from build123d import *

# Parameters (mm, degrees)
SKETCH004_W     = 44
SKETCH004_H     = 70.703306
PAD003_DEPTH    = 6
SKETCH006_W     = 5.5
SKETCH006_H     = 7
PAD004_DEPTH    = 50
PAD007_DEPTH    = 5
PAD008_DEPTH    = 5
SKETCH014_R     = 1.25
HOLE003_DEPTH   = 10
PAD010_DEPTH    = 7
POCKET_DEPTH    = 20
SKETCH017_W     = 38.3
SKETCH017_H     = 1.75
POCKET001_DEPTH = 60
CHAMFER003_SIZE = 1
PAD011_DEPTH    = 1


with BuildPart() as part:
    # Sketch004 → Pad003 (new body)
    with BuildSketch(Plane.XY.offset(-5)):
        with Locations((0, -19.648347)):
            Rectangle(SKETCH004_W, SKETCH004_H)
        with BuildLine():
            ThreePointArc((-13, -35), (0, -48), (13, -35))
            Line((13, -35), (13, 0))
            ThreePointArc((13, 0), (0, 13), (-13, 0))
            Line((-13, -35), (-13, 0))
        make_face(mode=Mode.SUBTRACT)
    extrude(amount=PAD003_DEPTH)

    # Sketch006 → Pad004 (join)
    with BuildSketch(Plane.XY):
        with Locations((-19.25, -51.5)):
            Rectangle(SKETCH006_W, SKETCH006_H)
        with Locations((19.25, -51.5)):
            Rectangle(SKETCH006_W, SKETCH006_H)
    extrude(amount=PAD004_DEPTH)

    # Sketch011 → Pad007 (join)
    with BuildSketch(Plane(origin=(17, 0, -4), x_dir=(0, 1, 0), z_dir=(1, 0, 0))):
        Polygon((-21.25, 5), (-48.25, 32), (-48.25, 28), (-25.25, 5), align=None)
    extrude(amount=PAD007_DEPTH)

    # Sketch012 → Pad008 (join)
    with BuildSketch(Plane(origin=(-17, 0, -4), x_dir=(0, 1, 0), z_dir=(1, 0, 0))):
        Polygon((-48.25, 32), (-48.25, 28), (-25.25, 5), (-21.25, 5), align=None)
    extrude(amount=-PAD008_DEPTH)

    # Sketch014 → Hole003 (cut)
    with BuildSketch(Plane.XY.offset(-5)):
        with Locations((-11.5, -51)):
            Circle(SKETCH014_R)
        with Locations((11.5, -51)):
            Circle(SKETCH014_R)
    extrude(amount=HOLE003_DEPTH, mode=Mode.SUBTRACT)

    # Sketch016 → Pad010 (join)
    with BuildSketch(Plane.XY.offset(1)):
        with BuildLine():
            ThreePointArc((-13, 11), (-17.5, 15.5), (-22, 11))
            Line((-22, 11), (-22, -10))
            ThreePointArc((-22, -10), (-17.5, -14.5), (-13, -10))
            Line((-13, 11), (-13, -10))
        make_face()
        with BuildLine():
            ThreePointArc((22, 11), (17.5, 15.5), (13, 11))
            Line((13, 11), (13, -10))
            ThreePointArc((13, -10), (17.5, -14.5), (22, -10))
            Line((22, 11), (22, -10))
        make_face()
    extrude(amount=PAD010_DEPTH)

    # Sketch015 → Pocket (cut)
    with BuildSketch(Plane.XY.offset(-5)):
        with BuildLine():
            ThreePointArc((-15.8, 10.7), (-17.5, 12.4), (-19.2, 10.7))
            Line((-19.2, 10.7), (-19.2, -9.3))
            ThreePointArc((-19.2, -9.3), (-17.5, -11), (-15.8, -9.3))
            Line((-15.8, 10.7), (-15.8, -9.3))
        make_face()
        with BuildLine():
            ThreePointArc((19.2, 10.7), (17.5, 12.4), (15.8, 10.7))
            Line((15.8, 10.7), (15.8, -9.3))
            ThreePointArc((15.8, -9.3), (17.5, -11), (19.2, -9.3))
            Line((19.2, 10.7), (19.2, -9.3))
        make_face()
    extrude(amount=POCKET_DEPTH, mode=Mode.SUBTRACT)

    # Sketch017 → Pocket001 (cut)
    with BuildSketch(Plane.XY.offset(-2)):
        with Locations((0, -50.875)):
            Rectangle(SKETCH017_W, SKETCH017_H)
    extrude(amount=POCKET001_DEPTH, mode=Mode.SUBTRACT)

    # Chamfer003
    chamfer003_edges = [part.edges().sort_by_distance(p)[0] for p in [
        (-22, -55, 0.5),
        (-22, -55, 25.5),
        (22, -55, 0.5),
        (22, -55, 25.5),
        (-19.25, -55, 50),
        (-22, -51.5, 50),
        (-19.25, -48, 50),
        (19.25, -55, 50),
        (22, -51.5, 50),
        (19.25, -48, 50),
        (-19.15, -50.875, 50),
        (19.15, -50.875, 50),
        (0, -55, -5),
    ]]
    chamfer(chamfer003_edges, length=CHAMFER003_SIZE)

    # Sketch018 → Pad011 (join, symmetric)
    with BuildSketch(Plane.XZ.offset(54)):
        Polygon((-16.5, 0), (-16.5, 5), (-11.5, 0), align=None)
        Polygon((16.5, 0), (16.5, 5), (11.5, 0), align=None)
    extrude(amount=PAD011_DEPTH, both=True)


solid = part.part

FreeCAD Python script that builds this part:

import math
import FreeCAD as App
import Part
import Sketcher


def edges_at(feature, points):
    """Names of the edges that pass closest to the given points."""
    edges = feature.Shape.Edges
    near = lambda p: min(range(len(edges)), key=lambda i: edges[i].distToShape(Part.Vertex(*p))[0])
    return sorted({f"Edge{near(p) + 1}" for p in points})


def add_polygon(sketch, points):
    """Adds a closed chain of lines whose ends are joined by coincident constraints."""
    first, n = sketch.GeometryCount, len(points)
    for a, b in zip(points, points[1:] + points[:1]):
        sketch.addGeometry(Part.LineSegment(App.Vector(*a, 0), App.Vector(*b, 0)), False)
    for i in range(n):
        sketch.addConstraint(Sketcher.Constraint("Coincident", first + i, 2, first + (i + 1) % n, 1))

doc = App.newDocument("Part")
body = doc.addObject("PartDesign::Body", "Body")

# Sketch on XY plane
sketch1 = doc.addObject("Sketcher::SketchObject", "Sketch")
body.addObject(sketch1)
sketch1.AttachmentSupport = (doc.XY_Plane, [""])
sketch1.MapMode = "FlatFace"
sketch1.AttachmentOffset = App.Placement(App.Vector(0, 0, -5), App.Rotation())
add_polygon(sketch1, [(-22, 16), (-22, -55), (22, -55), (22, 16)])  # lines 0-3
sketch1.addGeometry(Part.ArcOfCircle(Part.Circle(App.Vector(0, -35, 0), App.Vector(0, 0, 1), 13), math.radians(180), math.radians(360)), False)  # 4
sketch1.addGeometry(Part.LineSegment(App.Vector(-13, -35, 0), App.Vector(-13, 0, 0)), False)  # 5
sketch1.addGeometry(Part.ArcOfCircle(Part.Circle(App.Vector(0, 0, 0), App.Vector(0, 0, 1), 13), math.radians(0), math.radians(180)), False)  # 6
sketch1.addGeometry(Part.LineSegment(App.Vector(13, 0, 0), App.Vector(13, -35, 0)), False)  # 7
sketch1.addConstraint([
    Sketcher.Constraint("Tangent", 4, 1, 5, 1),
    Sketcher.Constraint("Tangent", 5, 2, 6, 2),
    Sketcher.Constraint("Tangent", 6, 1, 7, 1),
    Sketcher.Constraint("Tangent", 7, 2, 4, 2),
    Sketcher.Constraint("Vertical", 0),
    Sketcher.Constraint("Horizontal", 1),
    Sketcher.Constraint("Vertical", 2),
    Sketcher.Constraint("Horizontal", 3),
    Sketcher.Constraint("Vertical", 5),
    Sketcher.Constraint("Vertical", 7),
    Sketcher.Constraint("Coincident", 6, 3, -1, 1),
    Sketcher.Constraint("Radius", 4, 13.0),
    Sketcher.Constraint("DistanceX", 1, 1, 1, 2, 44.0),
    Sketcher.Constraint("DistanceY", 5, 1, 5, 2, 35.0),
    Sketcher.Constraint("DistanceX", 0, 2, -1, 1, 22.0),
    Sketcher.Constraint("DistanceY", 0, 2, -1, 1, 55.0),
    Sketcher.Constraint("DistanceY", 0, 2, 0, 1, 70.703306),
])
pad1 = doc.addObject("PartDesign::Pad", "Pad")
body.addObject(pad1)
pad1.Profile = sketch1
pad1.Length = 6

# Sketch on XY plane
sketch2 = doc.addObject("Sketcher::SketchObject", "Sketch001")
body.addObject(sketch2)
sketch2.AttachmentSupport = (doc.XY_Plane, [""])
sketch2.MapMode = "FlatFace"
add_polygon(sketch2, [(-22, -48), (-22, -55), (-16, -55), (-16, -48)])  # lines 0-3
add_polygon(sketch2, [(16, -48), (16, -55), (22, -55), (22, -48)])  # lines 4-7
sketch2.addConstraint([
    Sketcher.Constraint("Vertical", 0),
    Sketcher.Constraint("Horizontal", 1),
    Sketcher.Constraint("Vertical", 2),
    Sketcher.Constraint("Horizontal", 3),
    Sketcher.Constraint("Vertical", 4),
    Sketcher.Constraint("Horizontal", 5),
    Sketcher.Constraint("Vertical", 6),
    Sketcher.Constraint("Horizontal", 7),
    Sketcher.Constraint("Symmetric", 1, 2, 4, 2, -2),
    Sketcher.Constraint("Symmetric", 3, 2, 6, 2, -2),
    Sketcher.Constraint("DistanceY", 0, 2, 0, 1, 7.0),
    Sketcher.Constraint("DistanceX", 1, 1, 1, 2, 5.5),
    Sketcher.Constraint("DistanceX", 0, 2, -1, 1, 22.0),
    Sketcher.Constraint("DistanceY", 0, 2, -1, 1, 55.0),
])
pad2 = doc.addObject("PartDesign::Pad", "Pad001")
body.addObject(pad2)
pad2.Profile = sketch2
pad2.Length = 50

# Sketch on YZ plane
sketch3 = doc.addObject("Sketcher::SketchObject", "Sketch002")
body.addObject(sketch3)
sketch3.AttachmentSupport = (doc.YZ_Plane, [""])
sketch3.MapMode = "FlatFace"
sketch3.AttachmentOffset = App.Placement(App.Vector(0, 0, 17), App.Rotation())
add_polygon(sketch3, [(-21.2, 1), (-48.2, 28), (-48.2, 24), (-25.2, 1)])  # lines 0-3
sketch3.addConstraint([
    Sketcher.Constraint("Vertical", 1),
    Sketcher.Constraint("Horizontal", 3),
    Sketcher.Constraint("Parallel", 0, 2),
    Sketcher.Constraint("Equal", 3, 1),
    Sketcher.Constraint("DistanceX", 3, 1, 3, 2, 4.0),
    Sketcher.Constraint("DistanceY", -1, 1, 0, 2, 28.0),
    Sketcher.Constraint("DistanceY", -1, 1, 2, 2, 1.0),
    Sketcher.Constraint("DistanceX", 0, 2, -1, 1, 48.25),
])
pad3 = doc.addObject("PartDesign::Pad", "Pad002")
body.addObject(pad3)
pad3.Profile = sketch3
pad3.Length = 5

# Sketch on YZ plane
sketch4 = doc.addObject("Sketcher::SketchObject", "Sketch003")
body.addObject(sketch4)
sketch4.AttachmentSupport = (doc.YZ_Plane, [""])
sketch4.MapMode = "FlatFace"
sketch4.AttachmentOffset = App.Placement(App.Vector(0, 0, -17), App.Rotation())
add_polygon(sketch4, [(-48.2, 28), (-48.2, 24), (-25.2, 1), (-21.2, 1)])  # lines 0-3
sketch4.addConstraint([
    Sketcher.Constraint("Vertical", 0),
    Sketcher.Constraint("Horizontal", 2),
    Sketcher.Constraint("Parallel", 1, 3),
    Sketcher.Constraint("Equal", 2, 0),
    Sketcher.Constraint("DistanceX", 2, 1, 2, 2, 4.0),
    Sketcher.Constraint("DistanceY", -1, 1, 0, 2, 24.0),
    Sketcher.Constraint("DistanceY", -1, 1, 1, 2, 1.0),
    Sketcher.Constraint("DistanceX", 0, 2, -1, 1, 48.25),
])
pad4 = doc.addObject("PartDesign::Pad", "Pad003")
body.addObject(pad4)
pad4.Profile = sketch4
pad4.Length = 5
pad4.Reversed = True

# Sketch on XY plane
sketch5 = doc.addObject("Sketcher::SketchObject", "Sketch004")
body.addObject(sketch5)
sketch5.AttachmentSupport = (doc.XY_Plane, [""])
sketch5.MapMode = "FlatFace"
sketch5.AttachmentOffset = App.Placement(App.Vector(0, 0, -5), App.Rotation())
sketch5.addGeometry([
    Part.Circle(App.Vector(-11.5, -51, 0), App.Vector(0, 0, 1), 1.2),
    Part.Circle(App.Vector(11.5, -51, 0), App.Vector(0, 0, 1), 1.2),
], False)
sketch5.addConstraint([
    Sketcher.Constraint("Equal", 0, 1),
    Sketcher.Constraint("Symmetric", 0, 3, 1, 3, -2),
    Sketcher.Constraint("Diameter", 0, 2.5),
    Sketcher.Constraint("DistanceY", 0, 3, -1, 1, 51.0),
    Sketcher.Constraint("DistanceX", 0, 3, 1, 3, 23.0),
])
pocket1 = doc.addObject("PartDesign::Pocket", "Pocket")
body.addObject(pocket1)
pocket1.Profile = sketch5
pocket1.Length = 10
pocket1.Reversed = True

# Sketch on XY plane
sketch6 = doc.addObject("Sketcher::SketchObject", "Sketch005")
body.addObject(sketch6)
sketch6.AttachmentSupport = (doc.XY_Plane, [""])
sketch6.MapMode = "FlatFace"
sketch6.AttachmentOffset = App.Placement(App.Vector(0, 0, 1), App.Rotation())
sketch6.addGeometry([
    Part.ArcOfCircle(Part.Circle(App.Vector(-17.5, 11, 0), App.Vector(0, 0, 1), 4.5), math.radians(0), math.radians(180)),  # 0
    Part.LineSegment(App.Vector(-22, 11, 0), App.Vector(-22, -10, 0)),  # 1
    Part.ArcOfCircle(Part.Circle(App.Vector(-17.5, -10, 0), App.Vector(0, 0, 1), 4.5), math.radians(180), math.radians(360)),  # 2
    Part.LineSegment(App.Vector(-13, -10, 0), App.Vector(-13, 11, 0)),  # 3
    Part.ArcOfCircle(Part.Circle(App.Vector(17.5, 11, 0), App.Vector(0, 0, 1), 4.5), math.radians(0), math.radians(180)),  # 4
    Part.LineSegment(App.Vector(13, 11, 0), App.Vector(13, -10, 0)),  # 5
    Part.ArcOfCircle(Part.Circle(App.Vector(17.5, -10, 0), App.Vector(0, 0, 1), 4.5), math.radians(180), math.radians(360)),  # 6
    Part.LineSegment(App.Vector(22, -10, 0), App.Vector(22, 11, 0)),  # 7
], False)
sketch6.addConstraint([
    Sketcher.Constraint("Tangent", 0, 2, 1, 1),
    Sketcher.Constraint("Tangent", 1, 2, 2, 1),
    Sketcher.Constraint("Tangent", 2, 2, 3, 1),
    Sketcher.Constraint("Tangent", 3, 2, 0, 1),
    Sketcher.Constraint("Tangent", 4, 2, 5, 1),
    Sketcher.Constraint("Tangent", 5, 2, 6, 1),
    Sketcher.Constraint("Tangent", 6, 2, 7, 1),
    Sketcher.Constraint("Tangent", 7, 2, 4, 1),
    Sketcher.Constraint("Vertical", 1),
    Sketcher.Constraint("Vertical", 3),
    Sketcher.Constraint("Vertical", 5),
    Sketcher.Constraint("Vertical", 7),
    Sketcher.Constraint("Equal", 2, 4),
    Sketcher.Constraint("Symmetric", 0, 3, 4, 3, -2),
    Sketcher.Constraint("Horizontal", 2, 3, 6, 3),
    Sketcher.Constraint("Radius", 0, 4.5),
    Sketcher.Constraint("DistanceY", 1, 2, 1, 1, 21.0),
    Sketcher.Constraint("DistanceY", -1, 1, 0, 3, 11.0),
    Sketcher.Constraint("DistanceX", 0, 2, -1, 1, 22.0),
])
pad5 = doc.addObject("PartDesign::Pad", "Pad004")
body.addObject(pad5)
pad5.Profile = sketch6
pad5.Length = 7

# Sketch on XY plane
sketch7 = doc.addObject("Sketcher::SketchObject", "Sketch006")
body.addObject(sketch7)
sketch7.AttachmentSupport = (doc.XY_Plane, [""])
sketch7.MapMode = "FlatFace"
sketch7.AttachmentOffset = App.Placement(App.Vector(0, 0, -5), App.Rotation())
sketch7.addGeometry([
    Part.ArcOfCircle(Part.Circle(App.Vector(-17.5, 10.7, 0), App.Vector(0, 0, 1), 1.7), math.radians(0), math.radians(180)),  # 0
    Part.LineSegment(App.Vector(-19.2, 10.7, 0), App.Vector(-19.2, -9.3, 0)),  # 1
    Part.ArcOfCircle(Part.Circle(App.Vector(-17.5, -9.3, 0), App.Vector(0, 0, 1), 1.7), math.radians(180), math.radians(360)),  # 2
    Part.LineSegment(App.Vector(-15.8, -9.3, 0), App.Vector(-15.8, 10.7, 0)),  # 3
    Part.ArcOfCircle(Part.Circle(App.Vector(17.5, 10.7, 0), App.Vector(0, 0, 1), 1.7), math.radians(0), math.radians(180)),  # 4
    Part.LineSegment(App.Vector(15.8, 10.7, 0), App.Vector(15.8, -9.3, 0)),  # 5
    Part.ArcOfCircle(Part.Circle(App.Vector(17.5, -9.3, 0), App.Vector(0, 0, 1), 1.7), math.radians(180), math.radians(360)),  # 6
    Part.LineSegment(App.Vector(19.2, -9.3, 0), App.Vector(19.2, 10.7, 0)),  # 7
], False)
sketch7.addConstraint([
    Sketcher.Constraint("Tangent", 0, 2, 1, 1),
    Sketcher.Constraint("Tangent", 1, 2, 2, 1),
    Sketcher.Constraint("Tangent", 2, 2, 3, 1),
    Sketcher.Constraint("Tangent", 3, 2, 0, 1),
    Sketcher.Constraint("Tangent", 4, 2, 5, 1),
    Sketcher.Constraint("Tangent", 5, 2, 6, 1),
    Sketcher.Constraint("Tangent", 6, 2, 7, 1),
    Sketcher.Constraint("Tangent", 7, 2, 4, 1),
    Sketcher.Constraint("Vertical", 1),
    Sketcher.Constraint("Vertical", 3),
    Sketcher.Constraint("Vertical", 5),
    Sketcher.Constraint("Vertical", 7),
    Sketcher.Constraint("Equal", 2, 4),
    Sketcher.Constraint("Symmetric", 0, 3, 4, 3, -2),
    Sketcher.Constraint("Horizontal", 2, 3, 6, 3),
    Sketcher.Constraint("Radius", 0, 1.7),
    Sketcher.Constraint("DistanceY", 1, 2, 1, 1, 20.0),
    Sketcher.Constraint("DistanceX", 0, 3, 4, 3, 35.0),
    Sketcher.Constraint("DistanceY", -1, 1, 0, 3, 10.7),
])
pocket2 = doc.addObject("PartDesign::Pocket", "Pocket001")
body.addObject(pocket2)
pocket2.Profile = sketch7
pocket2.Length = 20
pocket2.Reversed = True

# Sketch on XY plane
sketch8 = doc.addObject("Sketcher::SketchObject", "Sketch007")
body.addObject(sketch8)
sketch8.AttachmentSupport = (doc.XY_Plane, [""])
sketch8.MapMode = "FlatFace"
sketch8.AttachmentOffset = App.Placement(App.Vector(0, 0, -2), App.Rotation())
add_polygon(sketch8, [(-19.1, -50), (-19.1, -51.8), (19.1, -51.8), (19.1, -50)])  # lines 0-3
sketch8.addConstraint([
    Sketcher.Constraint("Vertical", 0),
    Sketcher.Constraint("Horizontal", 1),
    Sketcher.Constraint("Vertical", 2),
    Sketcher.Constraint("Horizontal", 3),
    Sketcher.Constraint("DistanceX", 1, 1, 1, 2, 38.3),
    Sketcher.Constraint("DistanceY", 2, 2, -1, 1, 50.0),
    Sketcher.Constraint("DistanceY", 0, 2, 0, 1, 1.75),
    Sketcher.Constraint("DistanceX", 0, 2, -1, 1, 19.15),
])
pocket3 = doc.addObject("PartDesign::Pocket", "Pocket002")
body.addObject(pocket3)
pocket3.Profile = sketch8
pocket3.Length = 60
pocket3.Reversed = True
doc.recompute()

chamfer = doc.addObject("PartDesign::Chamfer", "Chamfer")
body.addObject(chamfer)
chamfer.Base = (pocket3, edges_at(pocket3, [
    (-22, -55, 22.5),
    (-22, -55, 22.5),
    (22, -55, 22.5),
    (22, -55, 22.5),
    (-19.25, -55, 50),
    (-22, -51.5, 50),
    (-19.25, -48, 50),
    (19.25, -55, 50),
    (22, -51.5, 50),
    (19.25, -48, 50),
    (-19.15, -50.875, 50),
    (19.15, -50.875, 50),
    (0, -55, -5),
]))
chamfer.Size = 1

# Sketch on XZ plane
sketch9 = doc.addObject("Sketcher::SketchObject", "Sketch008")
body.addObject(sketch9)
sketch9.AttachmentSupport = (doc.XZ_Plane, [""])
sketch9.MapMode = "FlatFace"
sketch9.AttachmentOffset = App.Placement(App.Vector(0, 0, 54), App.Rotation())
add_polygon(sketch9, [(-16, 5), (-16, 0), (-12, 0)])  # lines 0-2
add_polygon(sketch9, [(16, 0), (16, 5), (12, 0)])  # lines 3-5
sketch9.addConstraint([
    Sketcher.Constraint("Vertical", 0),
    Sketcher.Constraint("Horizontal", 1),
    Sketcher.Constraint("Vertical", 3),
    Sketcher.Constraint("Horizontal", 5),
    Sketcher.Constraint("Symmetric", 1, 2, 4, 2, -1, 1),
    Sketcher.Constraint("Symmetric", 2, 2, 3, 2, -2),
    Sketcher.Constraint("PointOnObject", 0, 2, -1),
    Sketcher.Constraint("Perpendicular", 2, 4),
    Sketcher.Constraint("DistanceX", 1, 1, 1, 2, 5.0),
    Sketcher.Constraint("DistanceX", 1, 2, 3, 2, 28.0),
])
pad6 = doc.addObject("PartDesign::Pad", "Pad005")
body.addObject(pad6)
pad6.Profile = sketch9
pad6.Length = 2
pad6.Midplane = True

doc.recompute()
